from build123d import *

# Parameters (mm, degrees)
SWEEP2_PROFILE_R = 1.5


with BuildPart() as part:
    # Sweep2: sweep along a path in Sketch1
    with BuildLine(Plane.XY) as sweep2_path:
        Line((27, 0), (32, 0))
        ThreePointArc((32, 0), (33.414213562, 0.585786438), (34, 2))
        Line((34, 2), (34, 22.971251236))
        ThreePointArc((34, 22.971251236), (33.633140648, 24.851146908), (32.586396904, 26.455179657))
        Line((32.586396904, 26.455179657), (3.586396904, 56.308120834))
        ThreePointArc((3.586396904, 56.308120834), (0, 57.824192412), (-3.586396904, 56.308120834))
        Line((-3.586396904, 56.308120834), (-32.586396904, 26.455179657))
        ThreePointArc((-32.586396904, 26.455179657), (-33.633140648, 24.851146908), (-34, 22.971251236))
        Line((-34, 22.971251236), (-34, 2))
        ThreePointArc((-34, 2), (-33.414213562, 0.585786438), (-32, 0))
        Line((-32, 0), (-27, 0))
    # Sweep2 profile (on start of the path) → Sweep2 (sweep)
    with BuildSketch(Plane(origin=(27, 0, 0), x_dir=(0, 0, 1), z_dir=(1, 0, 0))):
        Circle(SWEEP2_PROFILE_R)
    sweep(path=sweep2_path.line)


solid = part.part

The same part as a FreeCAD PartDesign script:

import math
import FreeCAD as App
import Part
import Sketcher
from FreeCAD import Vector
Q = App.Units.Quantity

doc = App.newDocument("Part")
params = doc.addObject("Spreadsheet::Sheet", "Params")
for row, (alias, value) in enumerate([
    ("sketch1_diameter", "3 mm"),
    ("sketch2_radius", "2 mm"),
    ("sketch2_radius2", "5 mm"),
    ("sketch2_width", "5 mm"),
], start=1):
    params.set(f"A{row}", alias)
    params.set(f"B{row}", "=" + value)
    params.setAlias(f"B{row}", alias)

body = doc.addObject("PartDesign::Body", "Body")

# Sketch on YZ plane
sketch1 = body.newObject("Sketcher::SketchObject", "Sketch")
sketch1.AttachmentSupport = (doc.getObject("YZ_Plane"), [""])
sketch1.MapMode = "FlatFace"
sketch1.AttachmentOffset = App.Placement(Vector(0, 0, 27), App.Rotation())
sketch1.addGeometry(Part.Circle(Vector(0, 0, 0), Vector(0, 0, 1), 1.5), False)
sketch1.addConstraint([
    Sketcher.Constraint("Coincident", 0, 3, -1, 1),
    Sketcher.Constraint("Diameter", 0, Q("3 mm")),
])
sketch1.setExpression("Constraints[1]", "Params.sketch1_diameter")

# Sketch on XY plane
sketch2 = body.newObject("Sketcher::SketchObject", "Sketch001")
sketch2.AttachmentSupport = (doc.getObject("XY_Plane"), [""])
sketch2.MapMode = "FlatFace"
sketch2.addGeometry([
    Part.LineSegment(Vector(27, 0, 0), Vector(32, 0, 0)),  # 0
    Part.ArcOfCircle(Part.Circle(Vector(32, 2, 0), Vector(0, 0, 1), 2), math.radians(-90), math.radians(0)),  # 1
    Part.LineSegment(Vector(34, 2, 0), Vector(34, 23, 0)),  # 2
    Part.ArcOfCircle(Part.Circle(Vector(29, 23, 0), Vector(0, 0, 1), 5), math.radians(0), math.radians(44)),  # 3
    Part.LineSegment(Vector(32.6, 26.5, 0), Vector(3.6, 56.3, 0)),  # 4
    Part.ArcOfCircle(Part.Circle(Vector(0, 52.8, 0), Vector(0, 0, 1), 5), math.radians(44), math.radians(136)),  # 5
    Part.LineSegment(Vector(-3.6, 56.3, 0), Vector(-32.6, 26.5, 0)),  # 6
    Part.ArcOfCircle(Part.Circle(Vector(-29, 23, 0), Vector(0, 0, 1), 5), math.radians(136), math.radians(180)),  # 7
    Part.LineSegment(Vector(-34, 23, 0), Vector(-34, 2, 0)),  # 8
    Part.ArcOfCircle(Part.Circle(Vector(-32, 2, 0), Vector(0, 0, 1), 2), math.radians(-180), math.radians(-90)),  # 9
    Part.LineSegment(Vector(-32, 0, 0), Vector(-27, 0, 0)),  # 10
], False)
sketch2.addConstraint([
    Sketcher.Constraint("Tangent", 0, 2, 1, 1),
    Sketcher.Constraint("Tangent", 1, 2, 2, 1),
    Sketcher.Constraint("Tangent", 2, 2, 3, 1),
    Sketcher.Constraint("Tangent", 3, 2, 4, 1),
    Sketcher.Constraint("Tangent", 4, 2, 5, 1),
    Sketcher.Constraint("Tangent", 5, 2, 6, 1),
    Sketcher.Constraint("Tangent", 6, 2, 7, 1),
    Sketcher.Constraint("Tangent", 7, 2, 8, 1),
    Sketcher.Constraint("Tangent", 8, 2, 9, 1),
    Sketcher.Constraint("Tangent", 9, 2, 10, 1),
    Sketcher.Constraint("Horizontal", 0),
    Sketcher.Constraint("Vertical", 2),
    Sketcher.Constraint("Vertical", 8),
    Sketcher.Constraint("Horizontal", 10),
    Sketcher.Constraint("Equal", 3, 5),
    Sketcher.Constraint("Equal", 5, 7),
    Sketcher.Constraint("Equal", 1, 9),
    Sketcher.Constraint("Symmetric", 0, 2, 9, 2, -1, 1),
    Sketcher.Constraint("Symmetric", 4, 2, 5, 2, -2),
    Sketcher.Constraint("Symmetric", 0, 1, 10, 2, -2),
    Sketcher.Constraint("Radius", 1, Q("2 mm")),
    Sketcher.Constraint("Radius", 3, Q("5 mm")),
    Sketcher.Constraint("DistanceX", 0, 1, 0, 2, Q("5 mm")),
    Sketcher.Constraint("DistanceX", -1, 1, 1, 3, Q("32 mm")),
    Sketcher.Constraint("DistanceY", 2, 1, 2, 2, Q("20.971251 mm")),
    Sketcher.Constraint("DistanceY", -1, 1, 3, 2, Q("26.45518 mm")),
])
sketch2.setExpression("Constraints[20]", "Params.sketch2_radius")
sketch2.setExpression("Constraints[21]", "Params.sketch2_radius2")
sketch2.setExpression("Constraints[22]", "Params.sketch2_width")
doc.recompute()

additivepipe = body.newObject("PartDesign::AdditivePipe", "AdditivePipe")
additivepipe.Profile = sketch1
additivepipe.Spine = (sketch2, ["Edge1", "Edge2", "Edge3", "Edge4", "Edge5", "Edge6", "Edge7", "Edge8", "Edge9", "Edge10", "Edge11"])

doc.recompute()
